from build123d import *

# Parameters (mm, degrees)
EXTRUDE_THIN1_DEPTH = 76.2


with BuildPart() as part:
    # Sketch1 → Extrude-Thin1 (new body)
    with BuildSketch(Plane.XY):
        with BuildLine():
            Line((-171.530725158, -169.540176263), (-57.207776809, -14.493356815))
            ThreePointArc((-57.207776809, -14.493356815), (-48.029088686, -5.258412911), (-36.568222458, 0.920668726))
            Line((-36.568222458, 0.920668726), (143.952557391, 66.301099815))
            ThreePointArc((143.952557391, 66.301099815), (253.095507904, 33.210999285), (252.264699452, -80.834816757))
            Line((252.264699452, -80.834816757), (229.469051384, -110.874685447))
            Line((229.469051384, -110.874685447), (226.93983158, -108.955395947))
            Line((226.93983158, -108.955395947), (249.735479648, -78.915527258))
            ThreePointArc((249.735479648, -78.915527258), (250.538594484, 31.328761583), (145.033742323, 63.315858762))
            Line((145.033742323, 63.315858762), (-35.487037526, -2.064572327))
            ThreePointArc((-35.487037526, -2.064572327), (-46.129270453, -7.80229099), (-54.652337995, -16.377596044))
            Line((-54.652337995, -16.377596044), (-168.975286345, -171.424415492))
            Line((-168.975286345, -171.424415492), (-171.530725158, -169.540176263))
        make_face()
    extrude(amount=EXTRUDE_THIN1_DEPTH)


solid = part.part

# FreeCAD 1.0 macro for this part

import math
import FreeCAD as App
import Part
import Sketcher
from FreeCAD import Vector
Q = App.Units.Quantity

doc = App.newDocument("Part")
body = doc.addObject("PartDesign::Body", "Body")

sketch1 = body.newObject("Sketcher::SketchObject", "Sketch")
sketch1.AttachmentSupport = (doc.getObject("XY_Plane"), [""])
sketch1.MapMode = "FlatFace"
sketch1.addGeometry([
    Part.LineSegment(Vector(-57.207777, -14.493357, 0), Vector(-171.530725, -169.540176, 0)),
    Part.LineSegment(Vector(-171.530725, -169.540176, 0), Vector(-168.975286, -171.424415, 0)),
    Part.LineSegment(Vector(-168.975286, -171.424415, 0), Vector(-54.652338, -16.377596, 0)),
    Part.ArcOfCircle(Part.Circle(Vector(-21.431633, -40.872706, 0), Vector(0, 0, 1), 41.275), math.radians(109.90921), math.radians(143.59699)),
    Part.LineSegment(Vector(-35.487038, -2.064572, 0), Vector(145.033742, 63.315859, 0)),
    Part.ArcOfCircle(Part.Circle(Vector(176.388105, -23.256132, 0), Vector(0, 0, 1), 92.075), math.radians(-37.192916), math.radians(109.90921)),
    Part.LineSegment(Vector(249.73548, -78.915527, 0), Vector(226.939832, -108.955396, 0)),
    Part.LineSegment(Vector(226.939832, -108.955396, 0), Vector(229.469051, -110.874685, 0)),
    Part.LineSegment(Vector(229.469051, -110.874685, 0), Vector(252.264699, -80.834817, 0)),
    Part.ArcOfCircle(Part.Circle(Vector(176.388105, -23.256132, 0), Vector(0, 0, 1), 95.25), math.radians(-37.192916), math.radians(109.90921)),
    Part.LineSegment(Vector(143.952557, 66.3011, 0), Vector(-36.568222, 0.920669, 0)),
    Part.ArcOfCircle(Part.Circle(Vector(-21.431633, -40.872706, 0), Vector(0, 0, 1), 44.45), math.radians(109.90921), math.radians(143.59699)),
], False)
sketch1.addConstraint([
    Sketcher.Constraint("Coincident", 0, 2, 1, 1),
    Sketcher.Constraint("Coincident", 1, 2, 2, 1),
    Sketcher.Constraint("Coincident", 2, 2, 3, 2),
    Sketcher.Constraint("Coincident", 3, 1, 4, 1),
    Sketcher.Constraint("Coincident", 4, 2, 5, 2),
    Sketcher.Constraint("Coincident", 5, 1, 6, 1),
    Sketcher.Constraint("Coincident", 6, 2, 7, 1),
    Sketcher.Constraint("Coincident", 7, 2, 8, 1),
    Sketcher.Constraint("Coincident", 8, 2, 9, 1),
    Sketcher.Constraint("Coincident", 9, 2, 10, 1),
    Sketcher.Constraint("Coincident", 10, 2, 11, 1),
    Sketcher.Constraint("Coincident", 11, 2, 0, 1),
    Sketcher.Constraint("Coincident", 9, 3, 5, 3),
    Sketcher.Constraint("Coincident", 11, 3, 3, 3),
    Sketcher.Constraint("Radius", 9, Q("3.75 in")),
    Sketcher.Constraint("Radius", 11, Q("1.75 in")),
    Sketcher.Constraint("Radius", 3, Q("1.625 in")),
    Sketcher.Constraint("Radius", 5, Q("3.625 in")),
    Sketcher.Constraint("Distance", 1, Q("0.125 in")),
    Sketcher.Constraint("Distance", 7, Q("0.125 in")),
    Sketcher.Constraint("DistanceX", -1, 1, 8, 2, 252.264699),
    Sketcher.Constraint("DistanceY", -1, 1, 9, 2, 66.3011),
    Sketcher.Constraint("DistanceX", 2, 2, 3, 1, 19.1653),
    Sketcher.Constraint("Distance", 0, 192.63762),
    Sketcher.Constraint("Distance", 2, 192.63762),
    Sketcher.Constraint("Distance", 4, 191.99571),
    Sketcher.Constraint("Distance", 10, 191.99571),
    Sketcher.Constraint("DistanceY", 5, 3, -1, 1, 23.256132),
    Sketcher.Constraint("DistanceY", -1, 1, 4, 2, 63.315859),
    Sketcher.Constraint("DistanceX", -1, 1, 5, 1, 249.73548),
    Sketcher.Constraint("DistanceX", -1, 1, 6, 2, 226.939832),
    Sketcher.Constraint("DistanceX", -1, 1, 7, 2, 229.469051),
    Sketcher.Constraint("DistanceY", -1, 1, 10, 2, 0.920669),
    Sketcher.Constraint("DistanceX", 3, 3, 5, 3, 197.819739),
    Sketcher.Constraint("DistanceX", 0, 2, 11, 3, 150.099092),
    Sketcher.Constraint("DistanceY", 0, 2, 11, 3, 128.66747),
    Sketcher.Constraint("DistanceY", 5, 1, 11, 3, 38.042821),
    Sketcher.Constraint("DistanceY", 6, 2, 5, 1, 30.039869),
])
pad1 = body.newObject("PartDesign::Pad", "Pad")
pad1.Profile = sketch1
pad1.Length = Q("3 in")

doc.recompute()
